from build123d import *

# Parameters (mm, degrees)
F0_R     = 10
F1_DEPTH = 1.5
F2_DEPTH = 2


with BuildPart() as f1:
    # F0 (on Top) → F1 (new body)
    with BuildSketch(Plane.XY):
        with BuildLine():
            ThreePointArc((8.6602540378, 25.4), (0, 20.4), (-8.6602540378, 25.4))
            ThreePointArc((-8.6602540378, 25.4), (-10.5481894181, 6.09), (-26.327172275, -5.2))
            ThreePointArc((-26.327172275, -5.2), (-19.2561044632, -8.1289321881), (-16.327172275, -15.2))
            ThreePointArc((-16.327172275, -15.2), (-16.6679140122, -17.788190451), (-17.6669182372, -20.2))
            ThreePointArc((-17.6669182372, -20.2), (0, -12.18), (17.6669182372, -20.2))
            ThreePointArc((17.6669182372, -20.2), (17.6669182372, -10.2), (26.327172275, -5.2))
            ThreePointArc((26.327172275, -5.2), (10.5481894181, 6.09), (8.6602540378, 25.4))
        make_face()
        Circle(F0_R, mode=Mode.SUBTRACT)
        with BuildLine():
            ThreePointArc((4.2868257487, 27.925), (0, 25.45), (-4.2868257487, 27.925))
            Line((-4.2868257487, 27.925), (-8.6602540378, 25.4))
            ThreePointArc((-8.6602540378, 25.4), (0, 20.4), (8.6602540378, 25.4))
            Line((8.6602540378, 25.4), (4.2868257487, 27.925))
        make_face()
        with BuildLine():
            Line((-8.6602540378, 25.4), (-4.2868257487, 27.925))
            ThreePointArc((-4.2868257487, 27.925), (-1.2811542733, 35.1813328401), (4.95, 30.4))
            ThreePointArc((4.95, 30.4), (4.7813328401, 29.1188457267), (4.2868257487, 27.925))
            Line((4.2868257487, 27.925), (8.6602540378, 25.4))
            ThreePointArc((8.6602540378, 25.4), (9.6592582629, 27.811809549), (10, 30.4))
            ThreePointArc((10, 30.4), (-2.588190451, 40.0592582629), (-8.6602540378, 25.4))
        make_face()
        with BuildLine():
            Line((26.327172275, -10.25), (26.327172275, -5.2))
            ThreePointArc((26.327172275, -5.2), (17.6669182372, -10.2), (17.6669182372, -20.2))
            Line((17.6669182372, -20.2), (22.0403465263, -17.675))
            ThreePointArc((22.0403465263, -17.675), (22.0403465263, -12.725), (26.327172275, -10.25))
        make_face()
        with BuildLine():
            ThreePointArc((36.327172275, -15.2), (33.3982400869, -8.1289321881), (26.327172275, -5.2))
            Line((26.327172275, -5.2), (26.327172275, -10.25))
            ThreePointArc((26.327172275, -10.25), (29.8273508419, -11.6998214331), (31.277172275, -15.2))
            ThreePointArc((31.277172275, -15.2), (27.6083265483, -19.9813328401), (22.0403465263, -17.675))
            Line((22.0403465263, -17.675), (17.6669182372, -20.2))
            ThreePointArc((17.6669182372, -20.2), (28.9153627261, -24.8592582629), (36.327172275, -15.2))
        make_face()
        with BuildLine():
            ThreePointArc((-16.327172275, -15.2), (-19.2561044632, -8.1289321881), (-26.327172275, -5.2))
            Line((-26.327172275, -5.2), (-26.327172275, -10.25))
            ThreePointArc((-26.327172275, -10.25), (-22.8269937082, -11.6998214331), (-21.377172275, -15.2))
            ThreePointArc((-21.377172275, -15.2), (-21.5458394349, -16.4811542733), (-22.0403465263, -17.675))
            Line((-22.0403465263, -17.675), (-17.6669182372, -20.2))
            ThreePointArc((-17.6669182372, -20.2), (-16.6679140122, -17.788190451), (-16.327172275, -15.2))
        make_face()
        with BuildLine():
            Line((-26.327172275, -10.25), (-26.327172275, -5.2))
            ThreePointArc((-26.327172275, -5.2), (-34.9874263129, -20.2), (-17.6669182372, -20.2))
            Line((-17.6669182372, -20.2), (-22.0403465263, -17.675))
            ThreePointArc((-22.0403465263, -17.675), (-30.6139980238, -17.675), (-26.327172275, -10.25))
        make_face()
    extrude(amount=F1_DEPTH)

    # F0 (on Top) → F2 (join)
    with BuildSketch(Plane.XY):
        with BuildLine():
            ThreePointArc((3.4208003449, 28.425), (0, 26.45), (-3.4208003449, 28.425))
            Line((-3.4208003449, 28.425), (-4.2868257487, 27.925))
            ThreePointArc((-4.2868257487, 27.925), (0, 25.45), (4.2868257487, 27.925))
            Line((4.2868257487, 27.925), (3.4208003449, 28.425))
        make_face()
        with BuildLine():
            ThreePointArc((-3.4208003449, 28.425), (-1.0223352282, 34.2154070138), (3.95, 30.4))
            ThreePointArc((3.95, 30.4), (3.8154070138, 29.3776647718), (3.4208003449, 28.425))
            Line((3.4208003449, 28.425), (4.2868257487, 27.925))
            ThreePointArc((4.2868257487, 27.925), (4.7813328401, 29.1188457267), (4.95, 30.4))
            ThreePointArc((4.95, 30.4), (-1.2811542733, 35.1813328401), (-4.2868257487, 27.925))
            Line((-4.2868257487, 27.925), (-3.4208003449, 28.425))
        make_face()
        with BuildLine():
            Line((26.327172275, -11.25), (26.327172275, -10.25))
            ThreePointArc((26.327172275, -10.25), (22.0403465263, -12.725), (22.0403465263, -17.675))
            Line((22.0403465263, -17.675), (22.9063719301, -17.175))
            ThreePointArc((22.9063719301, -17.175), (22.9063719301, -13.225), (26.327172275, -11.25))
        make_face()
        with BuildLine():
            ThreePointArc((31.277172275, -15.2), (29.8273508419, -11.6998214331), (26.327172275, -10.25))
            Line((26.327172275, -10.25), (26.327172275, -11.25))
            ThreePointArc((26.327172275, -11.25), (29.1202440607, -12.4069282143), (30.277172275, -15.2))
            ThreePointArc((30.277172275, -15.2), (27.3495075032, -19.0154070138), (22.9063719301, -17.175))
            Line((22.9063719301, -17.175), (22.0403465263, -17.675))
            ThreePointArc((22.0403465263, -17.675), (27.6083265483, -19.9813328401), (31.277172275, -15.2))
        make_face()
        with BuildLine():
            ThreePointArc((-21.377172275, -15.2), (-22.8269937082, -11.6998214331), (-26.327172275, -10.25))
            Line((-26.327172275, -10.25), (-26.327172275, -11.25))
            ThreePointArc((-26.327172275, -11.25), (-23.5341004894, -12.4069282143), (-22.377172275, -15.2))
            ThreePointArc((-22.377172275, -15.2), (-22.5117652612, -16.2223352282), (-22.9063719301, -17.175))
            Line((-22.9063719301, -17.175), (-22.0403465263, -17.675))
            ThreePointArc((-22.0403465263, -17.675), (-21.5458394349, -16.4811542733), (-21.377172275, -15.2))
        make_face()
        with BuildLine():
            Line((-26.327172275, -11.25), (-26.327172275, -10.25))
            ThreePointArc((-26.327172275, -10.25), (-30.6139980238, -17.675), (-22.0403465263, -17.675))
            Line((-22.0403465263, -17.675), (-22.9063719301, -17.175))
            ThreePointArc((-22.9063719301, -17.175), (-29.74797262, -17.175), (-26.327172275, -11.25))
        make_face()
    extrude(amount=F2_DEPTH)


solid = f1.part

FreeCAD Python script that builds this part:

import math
import FreeCAD as App
import Part
import Sketcher

V = App.Vector
Q = App.Units.Quantity

doc = App.newDocument("Part")
params = doc.addObject("Spreadsheet::Sheet", "Params")
for row, (alias, value) in enumerate([
    ("sketch1_diameter", "20 mm"),
    ("sketch1_radius", "4.95 mm"),
    ("sketch1_height", "5 mm"),
    ("pad1_length", "1.5 mm"),
    ("sketch2_radius", "4.95 mm"),
    ("sketch2_radius2", "3.95 mm"),
    ("pad2_length", "2 mm"),
], start=1):
    params.set(f"A{row}", alias)
    params.set(f"B{row}", "=" + value)
    params.setAlias(f"B{row}", alias)

body = doc.addObject("PartDesign::Body", "Body")

# Sketch on XY plane
sketch1 = body.newObject("Sketcher::SketchObject", "Sketch")
sketch1.AttachmentSupport = (doc.getObject("XY_Plane"), [""])
sketch1.MapMode = "FlatFace"
sketch1.addGeometry(Part.ArcOfCircle(Part.Circle(V(30.9, 17.8, 0), V(0, 0, 1), 23.5), math.radians(161), math.radians(259)), False)
sketch1.addGeometry(Part.ArcOfCircle(Part.Circle(V(0, 30.4, 0), V(0, 0, 1), 10), math.radians(-30), math.radians(0)), False)
sketch1.addGeometry(Part.ArcOfCircle(Part.Circle(V(0, 30.4, 0), V(0, 0, 1), 10), math.radians(0), math.radians(210)), False)
sketch1.addGeometry(Part.ArcOfCircle(Part.Circle(V(-30.9, 17.8, 0), V(0, 0, 1), 23.5), math.radians(-79), math.radians(19)), False)
sketch1.addGeometry(Part.ArcOfCircle(Part.Circle(V(-26.3, -15.2, 0), V(0, 0, 1), 10), math.radians(90), math.radians(330)), False)
sketch1.addGeometry(Part.ArcOfCircle(Part.Circle(V(0, -35.6, 0), V(0, 0, 1), 23.5), math.radians(41), math.radians(139)), False)
sketch1.addGeometry(Part.ArcOfCircle(Part.Circle(V(26.3, -15.2, 0), V(0, 0, 1), 10), math.radians(-150), math.radians(0)), False)
sketch1.addGeometry(Part.ArcOfCircle(Part.Circle(V(26.3, -15.2, 0), V(0, 0, 1), 10), math.radians(0), math.radians(90)), False)
sketch1.addGeometry(Part.ArcOfCircle(Part.Circle(V(-26.3, -15.2, 0), V(0, 0, 1), 5), math.radians(0), math.radians(90)), False)
sketch1.addGeometry(Part.ArcOfCircle(Part.Circle(V(-26.3, -15.2, 0), V(0, 0, 1), 5), math.radians(-30), math.radians(0)), False)
sketch1.addGeometry(Part.ArcOfCircle(Part.Circle(V(-26.3, -15.2, 0), V(0, 0, 1), 5), math.radians(90), math.radians(330)), False)
sketch1.addGeometry(Part.ArcOfCircle(Part.Circle(V(26.3, -15.2, 0), V(0, 0, 1), 5), math.radians(90), math.radians(210)), False)
sketch1.addGeometry(Part.ArcOfCircle(Part.Circle(V(26.3, -15.2, 0), V(0, 0, 1), 5), math.radians(0), math.radians(90)), False)
sketch1.addGeometry(Part.ArcOfCircle(Part.Circle(V(26.3, -15.2, 0), V(0, 0, 1), 5), math.radians(-150), math.radians(0)), False)
sketch1.addGeometry(Part.ArcOfCircle(Part.Circle(V(0, 30.4, 0), V(0, 0, 1), 5), math.radians(-150), math.radians(-30)), False)
sketch1.addGeometry(Part.ArcOfCircle(Part.Circle(V(0, 30.4, 0), V(0, 0, 1), 5), math.radians(0), math.radians(210)), False)
sketch1.addGeometry(Part.ArcOfCircle(Part.Circle(V(0, 30.4, 0), V(0, 0, 1), 5), math.radians(-30), math.radians(0)), False)
sketch1.addGeometry(Part.Circle(V(0, 0, 0), V(0, 0, 1), 10), False)
sketch1.addConstraint(Sketcher.Constraint("Coincident", 0, 1, 1, 1))
sketch1.addConstraint(Sketcher.Constraint("Tangent", 1, 2, 2, 1))
sketch1.addConstraint(Sketcher.Constraint("Coincident", 2, 2, 3, 2))
sketch1.addConstraint(Sketcher.Constraint("Coincident", 3, 1, 4, 1))
sketch1.addConstraint(Sketcher.Constraint("Coincident", 4, 2, 5, 2))
sketch1.addConstraint(Sketcher.Constraint("Coincident", 5, 1, 6, 1))
sketch1.addConstraint(Sketcher.Constraint("Tangent", 6, 2, 7, 1))
sketch1.addConstraint(Sketcher.Constraint("Coincident", 7, 2, 0, 2))
sketch1.addConstraint(Sketcher.Constraint("Tangent", 8, 1, 9, 2))
sketch1.addConstraint(Sketcher.Constraint("Tangent", 9, 1, 10, 2))
sketch1.addConstraint(Sketcher.Constraint("Tangent", 10, 1, 8, 2))
sketch1.addConstraint(Sketcher.Constraint("Tangent", 11, 1, 12, 2))
sketch1.addConstraint(Sketcher.Constraint("Tangent", 12, 1, 13, 2))
sketch1.addConstraint(Sketcher.Constraint("Tangent", 13, 1, 11, 2))
sketch1.addConstraint(Sketcher.Constraint("Tangent", 14, 1, 15, 2))
sketch1.addConstraint(Sketcher.Constraint("Tangent", 15, 1, 16, 2))
sketch1.addConstraint(Sketcher.Constraint("Tangent", 16, 1, 14, 2))
sketch1.addConstraint(Sketcher.Constraint("Coincident", 17, 3, -1, 1))
sketch1.addConstraint(Sketcher.Constraint("Coincident", 8, 3, 4, 3))
sketch1.addConstraint(Sketcher.Constraint("Coincident", 11, 3, 6, 3))
sketch1.addConstraint(Sketcher.Constraint("Coincident", 14, 3, 1, 3))
sketch1.addConstraint(Sketcher.Constraint("Equal", 1, 2))
sketch1.addConstraint(Sketcher.Constraint("Equal", 0, 3))
sketch1.addConstraint(Sketcher.Constraint("Equal", 2, 4))
sketch1.addConstraint(Sketcher.Constraint("Equal", 3, 5))
sketch1.addConstraint(Sketcher.Constraint("Equal", 4, 6))
sketch1.addConstraint(Sketcher.Constraint("Equal", 6, 7))
sketch1.addConstraint(Sketcher.Constraint("Equal", 10, 11))
sketch1.addConstraint(Sketcher.Constraint("Equal", 13, 14))
sketch1.addConstraint(Sketcher.Constraint("Equal", 7, 17))
sketch1.addConstraint(Sketcher.Constraint("Symmetric", 0, 3, 3, 3, -2))
sketch1.addConstraint(Sketcher.Constraint("Symmetric", 4, 3, 6, 3, -2))
sketch1.addConstraint(Sketcher.Constraint("Symmetric", 14, 1, 16, 1, -2))
sketch1.addConstraint(Sketcher.Constraint("PointOnObject", 5, 3, -2))
sketch1.addConstraint(Sketcher.Constraint("Horizontal", 16, 3, 1, 2))
sketch1.addConstraint(Sketcher.Constraint("Horizontal", 13, 3, 6, 2))
sketch1.addConstraint(Sketcher.Constraint("Horizontal", 6, 2, 8, 1))
sketch1.addConstraint(Sketcher.Constraint("Horizontal", 8, 1, 12, 1))
sketch1.addConstraint(Sketcher.Constraint("Horizontal", 9, 1, 13, 1))
sketch1.addConstraint(Sketcher.Constraint("Horizontal", 1, 2, 15, 1))
sketch1.addConstraint(Sketcher.Constraint("Vertical", 10, 3, 3, 1))
sketch1.addConstraint(Sketcher.Constraint("Vertical", 3, 1, 10, 1))
sketch1.addConstraint(Sketcher.Constraint("Vertical", 7, 2, 11, 1))
sketch1.addConstraint(Sketcher.Constraint("Diameter", 17, Q("20 mm")))
sketch1.addConstraint(Sketcher.Constraint("Radius", 8, Q("4.95 mm")))
sketch1.addConstraint(Sketcher.Constraint("DistanceY", 0, 1, 1, 3, Q("5 mm")))
sketch1.addConstraint(Sketcher.Constraint("DistanceY", 4, 2, 4, 3, Q("5 mm")))
sketch1.addConstraint(Sketcher.Constraint("DistanceY", -1, 1, 1, 3, Q("30.4 mm")))
sketch1.addConstraint(Sketcher.Constraint("DistanceY", 4, 3, -1, 1, Q("15.2 mm")))
sketch1.addConstraint(Sketcher.Constraint("DistanceY", 9, 1, -1, 1, Q("17.675 mm")))
sketch1.addConstraint(Sketcher.Constraint("DistanceY", -1, 1, 14, 1, Q("27.925 mm")))
sketch1.addConstraint(Sketcher.Constraint("Radius", 0, Q("23.468853 mm")))
sketch1.addConstraint(Sketcher.Constraint("DistanceX", 4, 2, -1, 1, Q("17.666918 mm")))
sketch1.setExpression("Constraints[43]", "Params.sketch1_diameter")
sketch1.setExpression("Constraints[44]", "Params.sketch1_radius")
sketch1.setExpression("Constraints[46]", "Params.sketch1_height")
pad1 = body.newObject("PartDesign::Pad", "Pad")
pad1.Profile = sketch1
pad1.setExpression("Length", "Params.pad1_length")

# Sketch on XY plane
sketch2 = body.newObject("Sketcher::SketchObject", "Sketch001")
sketch2.AttachmentSupport = (doc.getObject("XY_Plane"), [""])
sketch2.MapMode = "FlatFace"
sketch2.addGeometry(Part.ArcOfCircle(Part.Circle(V(0, 30.4, 0), V(0, 0, 1), 5), math.radians(-150), math.radians(-30)), False)
sketch2.addGeometry(Part.ArcOfCircle(Part.Circle(V(0, 30.4, 0), V(0, 0, 1), 5), math.radians(-30), math.radians(0)), False)
sketch2.addGeometry(Part.ArcOfCircle(Part.Circle(V(0, 30.4, 0), V(0, 0, 1), 5), math.radians(0), math.radians(210)), False)
sketch2.addGeometry(Part.ArcOfCircle(Part.Circle(V(0, 30.4, 0), V(0, 0, 1), 4), math.radians(-150), math.radians(-30)), False)
sketch2.addGeometry(Part.ArcOfCircle(Part.Circle(V(0, 30.4, 0), V(0, 0, 1), 4), math.radians(0), math.radians(210)), False)
sketch2.addGeometry(Part.ArcOfCircle(Part.Circle(V(0, 30.4, 0), V(0, 0, 1), 4), math.radians(-30), math.radians(0)), False)
sketch2.addGeometry(Part.ArcOfCircle(Part.Circle(V(26.3, -15.2, 0), V(0, 0, 1), 5), math.radians(90), math.radians(210)), False)
sketch2.addGeometry(Part.ArcOfCircle(Part.Circle(V(26.3, -15.2, 0), V(0, 0, 1), 5), math.radians(-150), math.radians(0)), False)
sketch2.addGeometry(Part.ArcOfCircle(Part.Circle(V(26.3, -15.2, 0), V(0, 0, 1), 5), math.radians(0), math.radians(90)), False)
sketch2.addGeometry(Part.ArcOfCircle(Part.Circle(V(26.3, -15.2, 0), V(0, 0, 1), 4), math.radians(0), math.radians(210)), False)
sketch2.addGeometry(Part.ArcOfCircle(Part.Circle(V(26.3, -15.2, 0), V(0, 0, 1), 4), math.radians(-150), math.radians(0)), False)
sketch2.addGeometry(Part.ArcOfCircle(Part.Circle(V(-26.3, -15.2, 0), V(0, 0, 1), 5), math.radians(0), math.radians(90)), False)
sketch2.addGeometry(Part.ArcOfCircle(Part.Circle(V(-26.3, -15.2, 0), V(0, 0, 1), 5), math.radians(90), math.radians(330)), False)
sketch2.addGeometry(Part.ArcOfCircle(Part.Circle(V(-26.3, -15.2, 0), V(0, 0, 1), 5), math.radians(-30), math.radians(0)), False)
sketch2.addGeometry(Part.ArcOfCircle(Part.Circle(V(-26.3, -15.2, 0), V(0, 0, 1), 4), math.radians(0), math.radians(90)), False)
sketch2.addGeometry(Part.ArcOfCircle(Part.Circle(V(-26.3, -15.2, 0), V(0, 0, 1), 4), math.radians(-30), math.radians(0)), False)
sketch2.addGeometry(Part.ArcOfCircle(Part.Circle(V(-26.3, -15.2, 0), V(0, 0, 1), 4), math.radians(90), math.radians(330)), False)
sketch2.addConstraint(Sketcher.Constraint("Tangent", 0, 2, 1, 1))
sketch2.addConstraint(Sketcher.Constraint("Tangent", 1, 2, 2, 1))
sketch2.addConstraint(Sketcher.Constraint("Tangent", 2, 2, 0, 1))
sketch2.addConstraint(Sketcher.Constraint("Tangent", 3, 1, 4, 2))
sketch2.addConstraint(Sketcher.Constraint("Tangent", 4, 1, 5, 2))
sketch2.addConstraint(Sketcher.Constraint("Tangent", 5, 1, 3, 2))
sketch2.addConstraint(Sketcher.Constraint("Tangent", 6, 2, 7, 1))
sketch2.addConstraint(Sketcher.Constraint("Tangent", 7, 2, 8, 1))
sketch2.addConstraint(Sketcher.Constraint("Tangent", 8, 2, 6, 1))
sketch2.addConstraint(Sketcher.Constraint("Tangent", 9, 1, 10, 2))
sketch2.addConstraint(Sketcher.Constraint("Coincident", 10, 1, 9, 2))
sketch2.addConstraint(Sketcher.Constraint("Tangent", 11, 2, 12, 1))
sketch2.addConstraint(Sketcher.Constraint("Tangent", 12, 2, 13, 1))
sketch2.addConstraint(Sketcher.Constraint("Tangent", 13, 2, 11, 1))
sketch2.addConstraint(Sketcher.Constraint("Tangent", 14, 1, 15, 2))
sketch2.addConstraint(Sketcher.Constraint("Tangent", 15, 1, 16, 2))
sketch2.addConstraint(Sketcher.Constraint("Tangent", 16, 1, 14, 2))
sketch2.addConstraint(Sketcher.Constraint("Coincident", 3, 3, 0, 3))
sketch2.addConstraint(Sketcher.Constraint("Coincident", 9, 3, 6, 3))
sketch2.addConstraint(Sketcher.Constraint("Coincident", 14, 3, 11, 3))
sketch2.addConstraint(Sketcher.Constraint("Equal", 2, 6))
sketch2.addConstraint(Sketcher.Constraint("Equal", 5, 9))
sketch2.addConstraint(Sketcher.Constraint("Equal", 8, 11))
sketch2.addConstraint(Sketcher.Constraint("Equal", 10, 14))
sketch2.addConstraint(Sketcher.Constraint("Symmetric", 6, 3, 11, 3, -2))
sketch2.addConstraint(Sketcher.Constraint("Symmetric", 0, 2, 2, 2, -2))
sketch2.addConstraint(Sketcher.Constraint("Horizontal", 5, 3, 1, 2))
sketch2.addConstraint(Sketcher.Constraint("Horizontal", 1, 2, 4, 1))
sketch2.addConstraint(Sketcher.Constraint("Horizontal", 3, 1, 5, 1))
sketch2.addConstraint(Sketcher.Constraint("Horizontal", 16, 3, 7, 2))
sketch2.addConstraint(Sketcher.Constraint("Horizontal", 7, 2, 9, 1))
sketch2.addConstraint(Sketcher.Constraint("Horizontal", 6, 2, 12, 2))
sketch2.addConstraint(Sketcher.Constraint("Horizontal", 9, 1, 13, 2))
sketch2.addConstraint(Sketcher.Constraint("Horizontal", 13, 2, 14, 1))
sketch2.addConstraint(Sketcher.Constraint("Horizontal", 10, 1, 15, 1))
sketch2.addConstraint(Sketcher.Constraint("Vertical", 10, 3, 8, 2))
sketch2.addConstraint(Sketcher.Constraint("Vertical", 16, 3, 11, 2))
sketch2.addConstraint(Sketcher.Constraint("Vertical", 11, 2, 16, 1))
sketch2.addConstraint(Sketcher.Constraint("Radius", 0, Q("4.95 mm")))
sketch2.addConstraint(Sketcher.Constraint("Radius", 3, Q("3.95 mm")))
sketch2.addConstraint(Sketcher.Constraint("DistanceY", -1, 1, 0, 3, Q("30.4 mm")))
sketch2.addConstraint(Sketcher.Constraint("DistanceY", 6, 3, -1, 1, Q("15.2 mm")))
sketch2.addConstraint(Sketcher.Constraint("DistanceY", 2, 2, 3, 1, Q("0.5 mm")))
sketch2.addConstraint(Sketcher.Constraint("DistanceY", 6, 2, 10, 1, Q("0.5 mm")))
sketch2.addConstraint(Sketcher.Constraint("DistanceY", -1, 1, 0, 2, Q("27.925 mm")))
sketch2.addConstraint(Sketcher.Constraint("DistanceY", 6, 2, -1, 1, Q("17.675 mm")))
sketch2.addConstraint(Sketcher.Constraint("DistanceX", -1, 1, 10, 1, Q("22.906372 mm")))
sketch2.setExpression("Constraints[38]", "Params.sketch2_radius")
sketch2.setExpression("Constraints[39]", "Params.sketch2_radius2")
pad2 = body.newObject("PartDesign::Pad", "Pad001")
pad2.Profile = sketch2
pad2.setExpression("Length", "Params.pad2_length")

doc.recompute()
